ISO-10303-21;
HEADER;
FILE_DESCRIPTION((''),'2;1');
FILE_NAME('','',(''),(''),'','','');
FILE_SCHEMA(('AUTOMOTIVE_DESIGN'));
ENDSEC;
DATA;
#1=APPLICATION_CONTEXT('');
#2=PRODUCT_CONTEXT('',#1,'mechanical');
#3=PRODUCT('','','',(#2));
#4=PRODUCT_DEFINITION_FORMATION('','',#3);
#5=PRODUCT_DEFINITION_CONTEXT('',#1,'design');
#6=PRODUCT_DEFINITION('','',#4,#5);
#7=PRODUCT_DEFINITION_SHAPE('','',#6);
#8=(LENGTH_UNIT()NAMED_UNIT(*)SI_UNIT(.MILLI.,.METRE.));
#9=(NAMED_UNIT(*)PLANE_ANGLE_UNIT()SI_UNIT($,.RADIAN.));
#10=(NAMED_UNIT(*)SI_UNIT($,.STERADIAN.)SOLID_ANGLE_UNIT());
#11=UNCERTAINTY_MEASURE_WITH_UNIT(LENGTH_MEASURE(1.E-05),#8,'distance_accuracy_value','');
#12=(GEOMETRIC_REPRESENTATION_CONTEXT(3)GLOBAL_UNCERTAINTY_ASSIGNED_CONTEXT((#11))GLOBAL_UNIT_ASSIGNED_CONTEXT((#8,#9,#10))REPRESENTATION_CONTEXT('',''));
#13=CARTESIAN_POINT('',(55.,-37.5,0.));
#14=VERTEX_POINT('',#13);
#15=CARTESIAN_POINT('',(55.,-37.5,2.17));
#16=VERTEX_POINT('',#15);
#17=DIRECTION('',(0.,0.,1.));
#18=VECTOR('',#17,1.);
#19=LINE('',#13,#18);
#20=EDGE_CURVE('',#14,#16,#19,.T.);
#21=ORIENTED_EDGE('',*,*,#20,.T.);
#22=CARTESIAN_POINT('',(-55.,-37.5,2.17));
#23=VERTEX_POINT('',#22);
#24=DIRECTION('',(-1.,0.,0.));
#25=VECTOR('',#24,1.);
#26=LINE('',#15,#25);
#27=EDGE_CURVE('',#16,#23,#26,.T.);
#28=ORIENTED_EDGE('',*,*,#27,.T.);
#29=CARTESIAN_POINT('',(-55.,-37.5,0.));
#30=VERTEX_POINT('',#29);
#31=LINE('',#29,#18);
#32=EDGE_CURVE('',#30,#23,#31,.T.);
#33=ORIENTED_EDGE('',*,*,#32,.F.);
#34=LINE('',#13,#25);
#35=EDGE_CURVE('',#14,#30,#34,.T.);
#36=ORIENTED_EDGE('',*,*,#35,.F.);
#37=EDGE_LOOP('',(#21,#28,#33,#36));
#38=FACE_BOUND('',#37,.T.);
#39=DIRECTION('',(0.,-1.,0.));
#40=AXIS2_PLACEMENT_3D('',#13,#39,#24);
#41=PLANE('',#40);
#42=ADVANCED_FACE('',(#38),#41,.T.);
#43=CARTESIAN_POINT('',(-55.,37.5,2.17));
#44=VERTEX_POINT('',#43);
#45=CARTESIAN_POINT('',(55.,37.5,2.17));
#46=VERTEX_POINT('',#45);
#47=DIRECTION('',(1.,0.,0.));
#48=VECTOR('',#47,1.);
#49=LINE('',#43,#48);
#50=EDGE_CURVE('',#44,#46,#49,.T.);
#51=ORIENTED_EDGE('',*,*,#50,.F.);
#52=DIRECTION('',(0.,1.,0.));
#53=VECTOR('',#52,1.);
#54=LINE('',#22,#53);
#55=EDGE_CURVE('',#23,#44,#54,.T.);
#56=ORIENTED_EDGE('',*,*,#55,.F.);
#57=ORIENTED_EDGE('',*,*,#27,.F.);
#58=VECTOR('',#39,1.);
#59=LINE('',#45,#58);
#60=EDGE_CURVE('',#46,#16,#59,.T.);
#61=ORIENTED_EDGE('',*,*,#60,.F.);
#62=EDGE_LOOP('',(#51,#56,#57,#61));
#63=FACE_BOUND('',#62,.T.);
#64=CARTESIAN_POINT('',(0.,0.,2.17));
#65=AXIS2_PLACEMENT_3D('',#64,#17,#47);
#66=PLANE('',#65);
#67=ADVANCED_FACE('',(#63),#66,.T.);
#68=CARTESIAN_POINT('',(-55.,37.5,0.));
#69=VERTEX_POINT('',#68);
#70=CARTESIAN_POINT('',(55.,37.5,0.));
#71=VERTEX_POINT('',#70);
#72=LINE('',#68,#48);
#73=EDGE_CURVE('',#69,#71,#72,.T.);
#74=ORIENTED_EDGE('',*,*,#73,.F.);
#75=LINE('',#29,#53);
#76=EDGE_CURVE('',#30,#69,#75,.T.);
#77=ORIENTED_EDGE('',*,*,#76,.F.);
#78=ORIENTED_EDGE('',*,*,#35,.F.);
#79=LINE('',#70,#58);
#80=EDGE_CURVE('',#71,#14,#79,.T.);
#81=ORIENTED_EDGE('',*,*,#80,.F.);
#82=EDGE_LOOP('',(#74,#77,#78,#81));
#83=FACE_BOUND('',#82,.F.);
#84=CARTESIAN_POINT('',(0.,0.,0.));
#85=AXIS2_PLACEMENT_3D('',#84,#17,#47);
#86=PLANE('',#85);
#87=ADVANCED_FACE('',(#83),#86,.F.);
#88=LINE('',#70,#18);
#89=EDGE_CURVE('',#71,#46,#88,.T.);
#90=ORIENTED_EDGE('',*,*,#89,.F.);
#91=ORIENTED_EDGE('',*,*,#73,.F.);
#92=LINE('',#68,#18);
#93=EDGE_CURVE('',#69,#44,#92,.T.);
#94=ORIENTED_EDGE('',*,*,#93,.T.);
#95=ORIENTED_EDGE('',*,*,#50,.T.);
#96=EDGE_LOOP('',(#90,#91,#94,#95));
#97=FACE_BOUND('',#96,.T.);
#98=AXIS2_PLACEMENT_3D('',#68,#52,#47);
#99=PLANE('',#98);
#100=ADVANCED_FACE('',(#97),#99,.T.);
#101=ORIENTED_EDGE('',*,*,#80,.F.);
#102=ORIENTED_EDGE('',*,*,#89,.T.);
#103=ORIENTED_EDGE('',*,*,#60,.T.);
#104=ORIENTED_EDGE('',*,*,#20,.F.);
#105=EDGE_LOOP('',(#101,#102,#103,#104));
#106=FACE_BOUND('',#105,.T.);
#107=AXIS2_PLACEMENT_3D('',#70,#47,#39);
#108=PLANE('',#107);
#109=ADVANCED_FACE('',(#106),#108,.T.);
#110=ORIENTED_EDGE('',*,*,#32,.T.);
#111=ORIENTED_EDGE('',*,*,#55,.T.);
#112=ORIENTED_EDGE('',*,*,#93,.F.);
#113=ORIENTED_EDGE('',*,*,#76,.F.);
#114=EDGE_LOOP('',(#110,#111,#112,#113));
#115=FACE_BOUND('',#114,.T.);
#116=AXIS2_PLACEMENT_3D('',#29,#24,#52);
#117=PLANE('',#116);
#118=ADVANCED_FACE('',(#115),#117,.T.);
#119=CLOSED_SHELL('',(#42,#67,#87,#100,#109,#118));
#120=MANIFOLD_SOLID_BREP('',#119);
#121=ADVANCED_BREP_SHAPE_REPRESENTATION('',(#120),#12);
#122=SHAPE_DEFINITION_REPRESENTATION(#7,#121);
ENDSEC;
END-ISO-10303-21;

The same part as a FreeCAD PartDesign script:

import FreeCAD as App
import Part
import Sketcher
from FreeCAD import Vector

doc = App.newDocument("Part")
body = doc.addObject("PartDesign::Body", "Body")

# Sketch on XY plane
sketch1 = body.newObject("Sketcher::SketchObject", "Sketch")
sketch1.AttachmentSupport = (doc.getObject("XY_Plane"), [""])
sketch1.MapMode = "FlatFace"
sketch1.addGeometry([
    Part.LineSegment(Vector(55, 37.5, 0), Vector(-55, 37.5, 0)),
    Part.LineSegment(Vector(-55, 37.5, 0), Vector(-55, -37.5, 0)),
    Part.LineSegment(Vector(-55, -37.5, 0), Vector(55, -37.5, 0)),
    Part.LineSegment(Vector(55, -37.5, 0), Vector(55, 37.5, 0)),
], False)
sketch1.addConstraint([
    Sketcher.Constraint("Coincident", 0, 2, 1, 1),
    Sketcher.Constraint("Coincident", 1, 2, 2, 1),
    Sketcher.Constraint("Coincident", 2, 2, 3, 1),
    Sketcher.Constraint("Coincident", 3, 2, 0, 1),
    Sketcher.Constraint("Horizontal", 0),
    Sketcher.Constraint("Vertical", 1),
    Sketcher.Constraint("Horizontal", 2),
    Sketcher.Constraint("Vertical", 3),
    Sketcher.Constraint("Symmetric", 0, 2, 2, 2, -1, 1),
    Sketcher.Constraint("DistanceX", 0, 2, 0, 1, 110.0),
    Sketcher.Constraint("DistanceY", 1, 2, 1, 1, 75.0),
])
pad1 = body.newObject("PartDesign::Pad", "Pad")
pad1.Profile = sketch1
pad1.Length = 2.17

doc.recompute()
